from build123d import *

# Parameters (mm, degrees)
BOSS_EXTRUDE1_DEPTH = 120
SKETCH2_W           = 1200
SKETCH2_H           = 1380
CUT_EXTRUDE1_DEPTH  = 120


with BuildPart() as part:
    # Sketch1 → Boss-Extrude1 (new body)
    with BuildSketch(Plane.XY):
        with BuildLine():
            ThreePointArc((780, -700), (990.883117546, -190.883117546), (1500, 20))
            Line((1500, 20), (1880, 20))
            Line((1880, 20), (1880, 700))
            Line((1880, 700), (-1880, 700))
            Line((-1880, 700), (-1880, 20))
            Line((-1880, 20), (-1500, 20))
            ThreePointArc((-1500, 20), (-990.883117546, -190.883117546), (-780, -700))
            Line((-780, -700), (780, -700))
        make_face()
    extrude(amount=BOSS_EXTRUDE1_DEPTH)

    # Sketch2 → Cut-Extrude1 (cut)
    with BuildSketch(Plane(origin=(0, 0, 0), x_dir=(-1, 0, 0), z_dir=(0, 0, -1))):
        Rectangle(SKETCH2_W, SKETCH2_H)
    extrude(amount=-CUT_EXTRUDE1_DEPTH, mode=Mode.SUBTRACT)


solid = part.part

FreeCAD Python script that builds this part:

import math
import FreeCAD as App
import Part
import Sketcher

V = App.Vector
Q = App.Units.Quantity

doc = App.newDocument("Part")
body = doc.addObject("PartDesign::Body", "Body")

sketch1 = body.newObject("Sketcher::SketchObject", "Sketch")
sketch1.AttachmentSupport = (doc.getObject("XY_Plane"), [""])
sketch1.MapMode = "FlatFace"
sketch1.addGeometry([
    Part.ArcOfCircle(Part.Circle(V(1500, -700, 0), V(0, 0, 1), 720), math.radians(90), math.radians(180)),
    Part.LineSegment(V(1500, 20, 0), V(1880, 20, 0)),
    Part.LineSegment(V(1880, 20, 0), V(1880, 700, 0)),
    Part.LineSegment(V(1880, 700, 0), V(-1880, 700, 0)),
    Part.LineSegment(V(-1880, 700, 0), V(-1880, 20, 0)),
    Part.LineSegment(V(-1880, 20, 0), V(-1500, 20, 0)),
    Part.ArcOfCircle(Part.Circle(V(-1500, -700, 0), V(0, 0, 1), 720), math.radians(0), math.radians(90)),
    Part.LineSegment(V(-780, -700, 0), V(780, -700, 0)),
], False)
sketch1.addConstraint([
    Sketcher.Constraint("Tangent", 0, 1, 1, 1),
    Sketcher.Constraint("Coincident", 1, 2, 2, 1),
    Sketcher.Constraint("Coincident", 2, 2, 3, 1),
    Sketcher.Constraint("Coincident", 3, 2, 4, 1),
    Sketcher.Constraint("Coincident", 4, 2, 5, 1),
    Sketcher.Constraint("Tangent", 5, 2, 6, 2),
    Sketcher.Constraint("Coincident", 6, 1, 7, 1),
    Sketcher.Constraint("Coincident", 7, 2, 0, 2),
    Sketcher.Constraint("Horizontal", 1),
    Sketcher.Constraint("Vertical", 2),
    Sketcher.Constraint("Horizontal", 3),
    Sketcher.Constraint("Vertical", 4),
    Sketcher.Constraint("Horizontal", 5),
    Sketcher.Constraint("Horizontal", 7),
    Sketcher.Constraint("Equal", 0, 6),
    Sketcher.Constraint("Symmetric", 0, 3, 6, 3, -2),
    Sketcher.Constraint("Equal", 1, 5),
    Sketcher.Constraint("Radius", 0, Q("720 mm")),
    Sketcher.Constraint("DistanceX", 1, 1, 1, 2, Q("380 mm")),
    Sketcher.Constraint("DistanceX", 3, 2, 3, 1, Q("3760 mm")),
    Sketcher.Constraint("DistanceY", 2, 1, 2, 2, Q("680 mm")),
    Sketcher.Constraint("DistanceY", 0, 3, -1, 1, Q("700 mm")),
    Sketcher.Constraint("DistanceY", 7, 2, -1, 1, Q("700 mm")),
])
pad1 = body.newObject("PartDesign::Pad", "Pad")
pad1.Profile = sketch1
pad1.Length = 120

sketch2 = body.newObject("Sketcher::SketchObject", "Sketch001")
sketch2.AttachmentSupport = (doc.getObject("XY_Plane"), [""])
sketch2.MapMode = "FlatFace"
sketch2.addGeometry([
    Part.LineSegment(V(600, 690, 0), V(600, -690, 0)),
    Part.LineSegment(V(600, -690, 0), V(-600, -690, 0)),
    Part.LineSegment(V(-600, -690, 0), V(-600, 690, 0)),
    Part.LineSegment(V(-600, 690, 0), V(600, 690, 0)),
], False)
sketch2.addConstraint([
    Sketcher.Constraint("Coincident", 0, 2, 1, 1),
    Sketcher.Constraint("Coincident", 1, 2, 2, 1),
    Sketcher.Constraint("Coincident", 2, 2, 3, 1),
    Sketcher.Constraint("Coincident", 3, 2, 0, 1),
    Sketcher.Constraint("Vertical", 0),
    Sketcher.Constraint("Horizontal", 1),
    Sketcher.Constraint("Vertical", 2),
    Sketcher.Constraint("Horizontal", 3),
    Sketcher.Constraint("Symmetric", 0, 2, 2, 2, -1, 1),
    Sketcher.Constraint("DistanceX", 1, 2, 1, 1, Q("1200 mm")),
    Sketcher.Constraint("DistanceY", 0, 2, 0, 1, Q("1380 mm")),
])
pocket1 = body.newObject("PartDesign::Pocket", "Pocket")
pocket1.Profile = sketch2
pocket1.Length = 120
pocket1.Reversed = True

doc.recompute()
